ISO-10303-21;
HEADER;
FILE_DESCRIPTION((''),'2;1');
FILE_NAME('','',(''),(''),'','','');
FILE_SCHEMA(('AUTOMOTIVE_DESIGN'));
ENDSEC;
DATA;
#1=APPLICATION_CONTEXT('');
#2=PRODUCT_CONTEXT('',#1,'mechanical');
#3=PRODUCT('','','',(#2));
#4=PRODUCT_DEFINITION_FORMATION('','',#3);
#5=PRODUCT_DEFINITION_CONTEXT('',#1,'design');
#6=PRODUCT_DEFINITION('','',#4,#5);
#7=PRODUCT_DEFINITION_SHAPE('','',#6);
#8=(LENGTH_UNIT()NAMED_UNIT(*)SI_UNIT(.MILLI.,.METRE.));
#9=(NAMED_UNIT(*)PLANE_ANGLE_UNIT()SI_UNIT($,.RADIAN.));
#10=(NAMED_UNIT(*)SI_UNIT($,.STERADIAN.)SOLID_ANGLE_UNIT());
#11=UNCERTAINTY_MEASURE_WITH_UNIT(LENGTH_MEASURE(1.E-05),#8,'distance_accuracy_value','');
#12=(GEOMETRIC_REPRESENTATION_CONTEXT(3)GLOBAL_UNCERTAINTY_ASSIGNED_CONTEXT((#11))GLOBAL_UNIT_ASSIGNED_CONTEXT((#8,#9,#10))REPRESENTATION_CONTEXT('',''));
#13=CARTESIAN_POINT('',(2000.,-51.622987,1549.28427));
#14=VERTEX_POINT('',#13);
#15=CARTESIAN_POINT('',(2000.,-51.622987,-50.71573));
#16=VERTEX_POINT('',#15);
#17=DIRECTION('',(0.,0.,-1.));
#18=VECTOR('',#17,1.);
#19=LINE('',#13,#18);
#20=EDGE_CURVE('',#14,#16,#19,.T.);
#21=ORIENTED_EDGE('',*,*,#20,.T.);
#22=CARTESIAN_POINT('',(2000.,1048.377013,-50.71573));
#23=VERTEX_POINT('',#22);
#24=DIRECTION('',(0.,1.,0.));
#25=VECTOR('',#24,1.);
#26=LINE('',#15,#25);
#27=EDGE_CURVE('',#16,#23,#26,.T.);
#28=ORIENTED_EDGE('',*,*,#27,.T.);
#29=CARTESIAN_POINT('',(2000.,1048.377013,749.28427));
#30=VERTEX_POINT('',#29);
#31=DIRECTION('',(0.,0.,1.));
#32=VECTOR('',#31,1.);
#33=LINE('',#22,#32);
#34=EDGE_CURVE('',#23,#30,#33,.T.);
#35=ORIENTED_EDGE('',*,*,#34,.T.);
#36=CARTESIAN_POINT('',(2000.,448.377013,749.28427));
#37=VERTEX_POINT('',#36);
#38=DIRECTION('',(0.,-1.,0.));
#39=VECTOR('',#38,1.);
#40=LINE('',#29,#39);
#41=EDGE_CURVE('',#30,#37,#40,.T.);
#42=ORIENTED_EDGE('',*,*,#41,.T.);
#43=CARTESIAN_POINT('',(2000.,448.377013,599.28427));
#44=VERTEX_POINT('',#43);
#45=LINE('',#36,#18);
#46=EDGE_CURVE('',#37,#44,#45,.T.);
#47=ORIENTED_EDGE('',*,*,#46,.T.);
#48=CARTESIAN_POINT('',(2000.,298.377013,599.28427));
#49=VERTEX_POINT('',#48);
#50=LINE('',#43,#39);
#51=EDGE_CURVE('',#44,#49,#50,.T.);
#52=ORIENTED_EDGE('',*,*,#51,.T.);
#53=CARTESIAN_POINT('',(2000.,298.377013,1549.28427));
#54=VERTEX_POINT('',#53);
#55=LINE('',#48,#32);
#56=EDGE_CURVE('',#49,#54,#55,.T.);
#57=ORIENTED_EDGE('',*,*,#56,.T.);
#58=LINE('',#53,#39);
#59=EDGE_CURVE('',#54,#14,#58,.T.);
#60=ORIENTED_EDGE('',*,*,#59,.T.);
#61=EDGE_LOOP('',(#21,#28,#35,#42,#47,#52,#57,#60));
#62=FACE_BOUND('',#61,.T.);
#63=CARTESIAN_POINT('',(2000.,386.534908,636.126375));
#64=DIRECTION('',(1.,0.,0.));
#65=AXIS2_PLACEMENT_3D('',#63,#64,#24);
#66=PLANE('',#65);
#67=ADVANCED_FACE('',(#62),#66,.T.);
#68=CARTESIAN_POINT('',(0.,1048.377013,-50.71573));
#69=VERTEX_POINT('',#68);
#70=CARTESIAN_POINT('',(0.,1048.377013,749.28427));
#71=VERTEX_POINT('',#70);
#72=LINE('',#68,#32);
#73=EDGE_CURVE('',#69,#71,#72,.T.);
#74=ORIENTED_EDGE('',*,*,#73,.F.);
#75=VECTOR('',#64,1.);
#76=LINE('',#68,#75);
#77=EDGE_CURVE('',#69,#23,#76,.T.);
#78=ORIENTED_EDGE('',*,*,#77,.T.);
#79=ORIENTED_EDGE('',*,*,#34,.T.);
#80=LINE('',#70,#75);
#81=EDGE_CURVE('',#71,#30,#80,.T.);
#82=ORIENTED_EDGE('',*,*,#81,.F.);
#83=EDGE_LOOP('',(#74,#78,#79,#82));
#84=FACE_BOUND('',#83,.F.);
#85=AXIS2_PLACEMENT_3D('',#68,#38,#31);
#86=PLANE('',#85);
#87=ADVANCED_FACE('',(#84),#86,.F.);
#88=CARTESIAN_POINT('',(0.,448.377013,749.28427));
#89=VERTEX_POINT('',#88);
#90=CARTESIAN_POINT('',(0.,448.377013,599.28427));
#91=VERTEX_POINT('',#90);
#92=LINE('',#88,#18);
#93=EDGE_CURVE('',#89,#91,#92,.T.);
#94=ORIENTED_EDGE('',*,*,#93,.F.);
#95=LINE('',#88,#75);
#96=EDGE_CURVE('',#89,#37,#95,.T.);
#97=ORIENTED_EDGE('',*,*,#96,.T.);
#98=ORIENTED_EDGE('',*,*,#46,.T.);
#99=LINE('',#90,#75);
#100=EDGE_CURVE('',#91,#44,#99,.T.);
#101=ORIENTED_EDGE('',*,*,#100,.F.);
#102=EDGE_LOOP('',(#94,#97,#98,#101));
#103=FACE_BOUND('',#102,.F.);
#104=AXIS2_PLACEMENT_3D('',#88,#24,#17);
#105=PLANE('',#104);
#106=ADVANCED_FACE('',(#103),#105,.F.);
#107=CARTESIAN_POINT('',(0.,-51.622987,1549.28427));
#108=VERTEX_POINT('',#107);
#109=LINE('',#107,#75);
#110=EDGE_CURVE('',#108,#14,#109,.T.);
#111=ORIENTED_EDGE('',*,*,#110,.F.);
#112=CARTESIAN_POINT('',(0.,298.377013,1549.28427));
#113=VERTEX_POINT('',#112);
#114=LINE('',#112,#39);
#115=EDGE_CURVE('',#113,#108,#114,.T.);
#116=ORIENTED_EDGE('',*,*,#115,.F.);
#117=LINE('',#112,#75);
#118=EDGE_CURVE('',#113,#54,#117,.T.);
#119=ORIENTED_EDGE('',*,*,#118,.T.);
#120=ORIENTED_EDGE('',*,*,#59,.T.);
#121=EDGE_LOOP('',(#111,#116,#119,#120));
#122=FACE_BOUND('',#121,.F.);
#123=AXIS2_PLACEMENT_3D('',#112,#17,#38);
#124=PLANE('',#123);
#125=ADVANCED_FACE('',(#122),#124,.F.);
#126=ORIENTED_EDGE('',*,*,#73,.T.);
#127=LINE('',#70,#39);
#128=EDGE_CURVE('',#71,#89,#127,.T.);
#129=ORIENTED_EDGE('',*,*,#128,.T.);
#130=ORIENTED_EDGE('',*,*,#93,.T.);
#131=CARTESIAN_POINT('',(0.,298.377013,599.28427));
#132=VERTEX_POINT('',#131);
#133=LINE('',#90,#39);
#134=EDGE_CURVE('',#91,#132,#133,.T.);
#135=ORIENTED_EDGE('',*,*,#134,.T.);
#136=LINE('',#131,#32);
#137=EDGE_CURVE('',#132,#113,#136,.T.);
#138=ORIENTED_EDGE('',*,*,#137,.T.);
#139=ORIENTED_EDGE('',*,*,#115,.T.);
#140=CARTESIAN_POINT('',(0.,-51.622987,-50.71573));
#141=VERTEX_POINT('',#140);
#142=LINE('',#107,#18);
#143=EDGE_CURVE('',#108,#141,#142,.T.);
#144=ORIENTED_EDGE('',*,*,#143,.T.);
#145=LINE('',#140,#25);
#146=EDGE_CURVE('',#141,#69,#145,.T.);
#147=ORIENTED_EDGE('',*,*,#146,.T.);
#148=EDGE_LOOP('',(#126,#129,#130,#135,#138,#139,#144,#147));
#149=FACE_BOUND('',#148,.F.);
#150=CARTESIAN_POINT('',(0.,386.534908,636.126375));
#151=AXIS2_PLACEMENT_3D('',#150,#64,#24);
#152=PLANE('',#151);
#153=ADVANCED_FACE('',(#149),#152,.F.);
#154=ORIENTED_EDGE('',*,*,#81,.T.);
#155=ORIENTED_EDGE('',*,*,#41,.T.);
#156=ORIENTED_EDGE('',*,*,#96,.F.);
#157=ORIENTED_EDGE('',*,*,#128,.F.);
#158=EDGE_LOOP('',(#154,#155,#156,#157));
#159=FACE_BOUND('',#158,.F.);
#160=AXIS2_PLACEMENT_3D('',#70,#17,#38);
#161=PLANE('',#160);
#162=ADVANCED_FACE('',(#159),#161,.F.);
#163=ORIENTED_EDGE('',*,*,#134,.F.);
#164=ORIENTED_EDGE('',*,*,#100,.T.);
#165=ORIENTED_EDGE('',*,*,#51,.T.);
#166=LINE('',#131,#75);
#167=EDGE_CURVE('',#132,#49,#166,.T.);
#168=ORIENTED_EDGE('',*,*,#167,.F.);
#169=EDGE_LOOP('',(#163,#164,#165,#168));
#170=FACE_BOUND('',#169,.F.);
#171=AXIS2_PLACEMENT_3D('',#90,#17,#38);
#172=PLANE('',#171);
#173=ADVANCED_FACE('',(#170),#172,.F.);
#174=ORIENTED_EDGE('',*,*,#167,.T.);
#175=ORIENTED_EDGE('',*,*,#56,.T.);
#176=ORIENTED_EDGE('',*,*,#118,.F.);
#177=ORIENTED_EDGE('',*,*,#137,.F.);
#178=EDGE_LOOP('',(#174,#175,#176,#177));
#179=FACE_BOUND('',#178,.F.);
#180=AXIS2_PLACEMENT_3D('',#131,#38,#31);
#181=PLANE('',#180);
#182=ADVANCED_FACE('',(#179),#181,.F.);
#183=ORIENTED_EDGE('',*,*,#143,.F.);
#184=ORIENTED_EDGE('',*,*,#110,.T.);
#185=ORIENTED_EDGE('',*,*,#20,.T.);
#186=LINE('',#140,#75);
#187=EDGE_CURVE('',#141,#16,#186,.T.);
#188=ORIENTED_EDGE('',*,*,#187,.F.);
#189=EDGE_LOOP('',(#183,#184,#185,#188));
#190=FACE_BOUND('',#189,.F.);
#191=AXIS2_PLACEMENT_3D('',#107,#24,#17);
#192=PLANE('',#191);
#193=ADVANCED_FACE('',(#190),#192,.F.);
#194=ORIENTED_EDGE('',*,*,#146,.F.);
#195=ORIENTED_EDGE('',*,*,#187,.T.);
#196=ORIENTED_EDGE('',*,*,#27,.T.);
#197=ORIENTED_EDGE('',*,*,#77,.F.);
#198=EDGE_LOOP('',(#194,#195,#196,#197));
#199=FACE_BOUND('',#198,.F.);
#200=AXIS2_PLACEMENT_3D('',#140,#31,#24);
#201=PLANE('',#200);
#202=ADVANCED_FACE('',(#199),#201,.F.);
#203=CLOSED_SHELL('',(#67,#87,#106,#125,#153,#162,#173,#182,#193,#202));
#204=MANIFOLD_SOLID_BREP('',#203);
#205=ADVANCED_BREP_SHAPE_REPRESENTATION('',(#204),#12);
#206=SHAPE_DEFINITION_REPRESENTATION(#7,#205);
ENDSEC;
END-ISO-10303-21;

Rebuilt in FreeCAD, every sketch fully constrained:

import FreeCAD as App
import Part
import Sketcher

V = App.Vector

doc = App.newDocument("Part")
params = doc.addObject("Spreadsheet::Sheet", "Params")
for row, (alias, value) in enumerate([
    ("sketch1_width", "350 mm"),
    ("sketch1_width2", "1100 mm"),
    ("sketch1_width3", "600 mm"),
    ("sketch1_height", "1600 mm"),
    ("sketch1_height2", "800 mm"),
    ("pad1_length", "2000 mm"),
], start=1):
    params.set(f"A{row}", alias)
    params.set(f"B{row}", "=" + value)
    params.setAlias(f"B{row}", alias)

body = doc.addObject("PartDesign::Body", "Body")

sketch1 = doc.addObject("Sketcher::SketchObject", "Sketch")
body.addObject(sketch1)
sketch1.AttachmentSupport = (doc.YZ_Plane, [""])
sketch1.MapMode = "FlatFace"
sketch1.addGeometry(Part.LineSegment(V(298.377013, 1549.28427, 0), V(-51.622987, 1549.28427, 0)), False)
sketch1.addGeometry(Part.LineSegment(V(-51.622987, 1549.28427, 0), V(-51.622987, -50.71573, 0)), False)
sketch1.addGeometry(Part.LineSegment(V(-51.622987, -50.71573, 0), V(1048.377013, -50.71573, 0)), False)
sketch1.addGeometry(Part.LineSegment(V(1048.377013, -50.71573, 0), V(1048.377013, 749.28427, 0)), False)
sketch1.addGeometry(Part.LineSegment(V(1048.377013, 749.28427, 0), V(448.377013, 749.28427, 0)), False)
sketch1.addGeometry(Part.LineSegment(V(448.377013, 749.28427, 0), V(448.377013, 599.28427, 0)), False)
sketch1.addGeometry(Part.LineSegment(V(448.377013, 599.28427, 0), V(298.377013, 599.28427, 0)), False)
sketch1.addGeometry(Part.LineSegment(V(298.377013, 599.28427, 0), V(298.377013, 1549.28427, 0)), False)
sketch1.addConstraint(Sketcher.Constraint("Coincident", 0, 2, 1, 1))
sketch1.addConstraint(Sketcher.Constraint("Coincident", 1, 2, 2, 1))
sketch1.addConstraint(Sketcher.Constraint("Coincident", 2, 2, 3, 1))
sketch1.addConstraint(Sketcher.Constraint("Coincident", 3, 2, 4, 1))
sketch1.addConstraint(Sketcher.Constraint("Coincident", 4, 2, 5, 1))
sketch1.addConstraint(Sketcher.Constraint("Coincident", 5, 2, 6, 1))
sketch1.addConstraint(Sketcher.Constraint("Coincident", 6, 2, 7, 1))
sketch1.addConstraint(Sketcher.Constraint("Coincident", 7, 2, 0, 1))
sketch1.addConstraint(Sketcher.Constraint("Horizontal", 0))
sketch1.addConstraint(Sketcher.Constraint("Vertical", 1))
sketch1.addConstraint(Sketcher.Constraint("Horizontal", 2))
sketch1.addConstraint(Sketcher.Constraint("Vertical", 3))
sketch1.addConstraint(Sketcher.Constraint("Horizontal", 4))
sketch1.addConstraint(Sketcher.Constraint("Vertical", 5))
sketch1.addConstraint(Sketcher.Constraint("Horizontal", 6))
sketch1.addConstraint(Sketcher.Constraint("Vertical", 7))
sketch1.addConstraint(Sketcher.Constraint("Equal", 6, 5))
sketch1.addConstraint(Sketcher.Constraint("DistanceX", 0, 2, 0, 1, 350.0))
sketch1.addConstraint(Sketcher.Constraint("DistanceX", 2, 1, 2, 2, 1100.0))
sketch1.addConstraint(Sketcher.Constraint("DistanceX", 4, 2, 4, 1, 600.0))
sketch1.addConstraint(Sketcher.Constraint("DistanceY", 1, 2, 1, 1, 1600.0))
sketch1.addConstraint(Sketcher.Constraint("DistanceY", 3, 1, 3, 2, 800.0))
sketch1.addConstraint(Sketcher.Constraint("DistanceY", -1, 1, 0, 2, 1549.28427))
sketch1.addConstraint(Sketcher.Constraint("DistanceX", 0, 2, -1, 1, 51.622987))
sketch1.setExpression("Constraints[17]", "Params.sketch1_width")
sketch1.setExpression("Constraints[18]", "Params.sketch1_width2")
sketch1.setExpression("Constraints[19]", "Params.sketch1_width3")
sketch1.setExpression("Constraints[20]", "Params.sketch1_height")
sketch1.setExpression("Constraints[21]", "Params.sketch1_height2")
pad1 = doc.addObject("PartDesign::Pad", "Pad")
body.addObject(pad1)
pad1.Profile = sketch1
pad1.setExpression("Length", "Params.pad1_length")

doc.recompute()
